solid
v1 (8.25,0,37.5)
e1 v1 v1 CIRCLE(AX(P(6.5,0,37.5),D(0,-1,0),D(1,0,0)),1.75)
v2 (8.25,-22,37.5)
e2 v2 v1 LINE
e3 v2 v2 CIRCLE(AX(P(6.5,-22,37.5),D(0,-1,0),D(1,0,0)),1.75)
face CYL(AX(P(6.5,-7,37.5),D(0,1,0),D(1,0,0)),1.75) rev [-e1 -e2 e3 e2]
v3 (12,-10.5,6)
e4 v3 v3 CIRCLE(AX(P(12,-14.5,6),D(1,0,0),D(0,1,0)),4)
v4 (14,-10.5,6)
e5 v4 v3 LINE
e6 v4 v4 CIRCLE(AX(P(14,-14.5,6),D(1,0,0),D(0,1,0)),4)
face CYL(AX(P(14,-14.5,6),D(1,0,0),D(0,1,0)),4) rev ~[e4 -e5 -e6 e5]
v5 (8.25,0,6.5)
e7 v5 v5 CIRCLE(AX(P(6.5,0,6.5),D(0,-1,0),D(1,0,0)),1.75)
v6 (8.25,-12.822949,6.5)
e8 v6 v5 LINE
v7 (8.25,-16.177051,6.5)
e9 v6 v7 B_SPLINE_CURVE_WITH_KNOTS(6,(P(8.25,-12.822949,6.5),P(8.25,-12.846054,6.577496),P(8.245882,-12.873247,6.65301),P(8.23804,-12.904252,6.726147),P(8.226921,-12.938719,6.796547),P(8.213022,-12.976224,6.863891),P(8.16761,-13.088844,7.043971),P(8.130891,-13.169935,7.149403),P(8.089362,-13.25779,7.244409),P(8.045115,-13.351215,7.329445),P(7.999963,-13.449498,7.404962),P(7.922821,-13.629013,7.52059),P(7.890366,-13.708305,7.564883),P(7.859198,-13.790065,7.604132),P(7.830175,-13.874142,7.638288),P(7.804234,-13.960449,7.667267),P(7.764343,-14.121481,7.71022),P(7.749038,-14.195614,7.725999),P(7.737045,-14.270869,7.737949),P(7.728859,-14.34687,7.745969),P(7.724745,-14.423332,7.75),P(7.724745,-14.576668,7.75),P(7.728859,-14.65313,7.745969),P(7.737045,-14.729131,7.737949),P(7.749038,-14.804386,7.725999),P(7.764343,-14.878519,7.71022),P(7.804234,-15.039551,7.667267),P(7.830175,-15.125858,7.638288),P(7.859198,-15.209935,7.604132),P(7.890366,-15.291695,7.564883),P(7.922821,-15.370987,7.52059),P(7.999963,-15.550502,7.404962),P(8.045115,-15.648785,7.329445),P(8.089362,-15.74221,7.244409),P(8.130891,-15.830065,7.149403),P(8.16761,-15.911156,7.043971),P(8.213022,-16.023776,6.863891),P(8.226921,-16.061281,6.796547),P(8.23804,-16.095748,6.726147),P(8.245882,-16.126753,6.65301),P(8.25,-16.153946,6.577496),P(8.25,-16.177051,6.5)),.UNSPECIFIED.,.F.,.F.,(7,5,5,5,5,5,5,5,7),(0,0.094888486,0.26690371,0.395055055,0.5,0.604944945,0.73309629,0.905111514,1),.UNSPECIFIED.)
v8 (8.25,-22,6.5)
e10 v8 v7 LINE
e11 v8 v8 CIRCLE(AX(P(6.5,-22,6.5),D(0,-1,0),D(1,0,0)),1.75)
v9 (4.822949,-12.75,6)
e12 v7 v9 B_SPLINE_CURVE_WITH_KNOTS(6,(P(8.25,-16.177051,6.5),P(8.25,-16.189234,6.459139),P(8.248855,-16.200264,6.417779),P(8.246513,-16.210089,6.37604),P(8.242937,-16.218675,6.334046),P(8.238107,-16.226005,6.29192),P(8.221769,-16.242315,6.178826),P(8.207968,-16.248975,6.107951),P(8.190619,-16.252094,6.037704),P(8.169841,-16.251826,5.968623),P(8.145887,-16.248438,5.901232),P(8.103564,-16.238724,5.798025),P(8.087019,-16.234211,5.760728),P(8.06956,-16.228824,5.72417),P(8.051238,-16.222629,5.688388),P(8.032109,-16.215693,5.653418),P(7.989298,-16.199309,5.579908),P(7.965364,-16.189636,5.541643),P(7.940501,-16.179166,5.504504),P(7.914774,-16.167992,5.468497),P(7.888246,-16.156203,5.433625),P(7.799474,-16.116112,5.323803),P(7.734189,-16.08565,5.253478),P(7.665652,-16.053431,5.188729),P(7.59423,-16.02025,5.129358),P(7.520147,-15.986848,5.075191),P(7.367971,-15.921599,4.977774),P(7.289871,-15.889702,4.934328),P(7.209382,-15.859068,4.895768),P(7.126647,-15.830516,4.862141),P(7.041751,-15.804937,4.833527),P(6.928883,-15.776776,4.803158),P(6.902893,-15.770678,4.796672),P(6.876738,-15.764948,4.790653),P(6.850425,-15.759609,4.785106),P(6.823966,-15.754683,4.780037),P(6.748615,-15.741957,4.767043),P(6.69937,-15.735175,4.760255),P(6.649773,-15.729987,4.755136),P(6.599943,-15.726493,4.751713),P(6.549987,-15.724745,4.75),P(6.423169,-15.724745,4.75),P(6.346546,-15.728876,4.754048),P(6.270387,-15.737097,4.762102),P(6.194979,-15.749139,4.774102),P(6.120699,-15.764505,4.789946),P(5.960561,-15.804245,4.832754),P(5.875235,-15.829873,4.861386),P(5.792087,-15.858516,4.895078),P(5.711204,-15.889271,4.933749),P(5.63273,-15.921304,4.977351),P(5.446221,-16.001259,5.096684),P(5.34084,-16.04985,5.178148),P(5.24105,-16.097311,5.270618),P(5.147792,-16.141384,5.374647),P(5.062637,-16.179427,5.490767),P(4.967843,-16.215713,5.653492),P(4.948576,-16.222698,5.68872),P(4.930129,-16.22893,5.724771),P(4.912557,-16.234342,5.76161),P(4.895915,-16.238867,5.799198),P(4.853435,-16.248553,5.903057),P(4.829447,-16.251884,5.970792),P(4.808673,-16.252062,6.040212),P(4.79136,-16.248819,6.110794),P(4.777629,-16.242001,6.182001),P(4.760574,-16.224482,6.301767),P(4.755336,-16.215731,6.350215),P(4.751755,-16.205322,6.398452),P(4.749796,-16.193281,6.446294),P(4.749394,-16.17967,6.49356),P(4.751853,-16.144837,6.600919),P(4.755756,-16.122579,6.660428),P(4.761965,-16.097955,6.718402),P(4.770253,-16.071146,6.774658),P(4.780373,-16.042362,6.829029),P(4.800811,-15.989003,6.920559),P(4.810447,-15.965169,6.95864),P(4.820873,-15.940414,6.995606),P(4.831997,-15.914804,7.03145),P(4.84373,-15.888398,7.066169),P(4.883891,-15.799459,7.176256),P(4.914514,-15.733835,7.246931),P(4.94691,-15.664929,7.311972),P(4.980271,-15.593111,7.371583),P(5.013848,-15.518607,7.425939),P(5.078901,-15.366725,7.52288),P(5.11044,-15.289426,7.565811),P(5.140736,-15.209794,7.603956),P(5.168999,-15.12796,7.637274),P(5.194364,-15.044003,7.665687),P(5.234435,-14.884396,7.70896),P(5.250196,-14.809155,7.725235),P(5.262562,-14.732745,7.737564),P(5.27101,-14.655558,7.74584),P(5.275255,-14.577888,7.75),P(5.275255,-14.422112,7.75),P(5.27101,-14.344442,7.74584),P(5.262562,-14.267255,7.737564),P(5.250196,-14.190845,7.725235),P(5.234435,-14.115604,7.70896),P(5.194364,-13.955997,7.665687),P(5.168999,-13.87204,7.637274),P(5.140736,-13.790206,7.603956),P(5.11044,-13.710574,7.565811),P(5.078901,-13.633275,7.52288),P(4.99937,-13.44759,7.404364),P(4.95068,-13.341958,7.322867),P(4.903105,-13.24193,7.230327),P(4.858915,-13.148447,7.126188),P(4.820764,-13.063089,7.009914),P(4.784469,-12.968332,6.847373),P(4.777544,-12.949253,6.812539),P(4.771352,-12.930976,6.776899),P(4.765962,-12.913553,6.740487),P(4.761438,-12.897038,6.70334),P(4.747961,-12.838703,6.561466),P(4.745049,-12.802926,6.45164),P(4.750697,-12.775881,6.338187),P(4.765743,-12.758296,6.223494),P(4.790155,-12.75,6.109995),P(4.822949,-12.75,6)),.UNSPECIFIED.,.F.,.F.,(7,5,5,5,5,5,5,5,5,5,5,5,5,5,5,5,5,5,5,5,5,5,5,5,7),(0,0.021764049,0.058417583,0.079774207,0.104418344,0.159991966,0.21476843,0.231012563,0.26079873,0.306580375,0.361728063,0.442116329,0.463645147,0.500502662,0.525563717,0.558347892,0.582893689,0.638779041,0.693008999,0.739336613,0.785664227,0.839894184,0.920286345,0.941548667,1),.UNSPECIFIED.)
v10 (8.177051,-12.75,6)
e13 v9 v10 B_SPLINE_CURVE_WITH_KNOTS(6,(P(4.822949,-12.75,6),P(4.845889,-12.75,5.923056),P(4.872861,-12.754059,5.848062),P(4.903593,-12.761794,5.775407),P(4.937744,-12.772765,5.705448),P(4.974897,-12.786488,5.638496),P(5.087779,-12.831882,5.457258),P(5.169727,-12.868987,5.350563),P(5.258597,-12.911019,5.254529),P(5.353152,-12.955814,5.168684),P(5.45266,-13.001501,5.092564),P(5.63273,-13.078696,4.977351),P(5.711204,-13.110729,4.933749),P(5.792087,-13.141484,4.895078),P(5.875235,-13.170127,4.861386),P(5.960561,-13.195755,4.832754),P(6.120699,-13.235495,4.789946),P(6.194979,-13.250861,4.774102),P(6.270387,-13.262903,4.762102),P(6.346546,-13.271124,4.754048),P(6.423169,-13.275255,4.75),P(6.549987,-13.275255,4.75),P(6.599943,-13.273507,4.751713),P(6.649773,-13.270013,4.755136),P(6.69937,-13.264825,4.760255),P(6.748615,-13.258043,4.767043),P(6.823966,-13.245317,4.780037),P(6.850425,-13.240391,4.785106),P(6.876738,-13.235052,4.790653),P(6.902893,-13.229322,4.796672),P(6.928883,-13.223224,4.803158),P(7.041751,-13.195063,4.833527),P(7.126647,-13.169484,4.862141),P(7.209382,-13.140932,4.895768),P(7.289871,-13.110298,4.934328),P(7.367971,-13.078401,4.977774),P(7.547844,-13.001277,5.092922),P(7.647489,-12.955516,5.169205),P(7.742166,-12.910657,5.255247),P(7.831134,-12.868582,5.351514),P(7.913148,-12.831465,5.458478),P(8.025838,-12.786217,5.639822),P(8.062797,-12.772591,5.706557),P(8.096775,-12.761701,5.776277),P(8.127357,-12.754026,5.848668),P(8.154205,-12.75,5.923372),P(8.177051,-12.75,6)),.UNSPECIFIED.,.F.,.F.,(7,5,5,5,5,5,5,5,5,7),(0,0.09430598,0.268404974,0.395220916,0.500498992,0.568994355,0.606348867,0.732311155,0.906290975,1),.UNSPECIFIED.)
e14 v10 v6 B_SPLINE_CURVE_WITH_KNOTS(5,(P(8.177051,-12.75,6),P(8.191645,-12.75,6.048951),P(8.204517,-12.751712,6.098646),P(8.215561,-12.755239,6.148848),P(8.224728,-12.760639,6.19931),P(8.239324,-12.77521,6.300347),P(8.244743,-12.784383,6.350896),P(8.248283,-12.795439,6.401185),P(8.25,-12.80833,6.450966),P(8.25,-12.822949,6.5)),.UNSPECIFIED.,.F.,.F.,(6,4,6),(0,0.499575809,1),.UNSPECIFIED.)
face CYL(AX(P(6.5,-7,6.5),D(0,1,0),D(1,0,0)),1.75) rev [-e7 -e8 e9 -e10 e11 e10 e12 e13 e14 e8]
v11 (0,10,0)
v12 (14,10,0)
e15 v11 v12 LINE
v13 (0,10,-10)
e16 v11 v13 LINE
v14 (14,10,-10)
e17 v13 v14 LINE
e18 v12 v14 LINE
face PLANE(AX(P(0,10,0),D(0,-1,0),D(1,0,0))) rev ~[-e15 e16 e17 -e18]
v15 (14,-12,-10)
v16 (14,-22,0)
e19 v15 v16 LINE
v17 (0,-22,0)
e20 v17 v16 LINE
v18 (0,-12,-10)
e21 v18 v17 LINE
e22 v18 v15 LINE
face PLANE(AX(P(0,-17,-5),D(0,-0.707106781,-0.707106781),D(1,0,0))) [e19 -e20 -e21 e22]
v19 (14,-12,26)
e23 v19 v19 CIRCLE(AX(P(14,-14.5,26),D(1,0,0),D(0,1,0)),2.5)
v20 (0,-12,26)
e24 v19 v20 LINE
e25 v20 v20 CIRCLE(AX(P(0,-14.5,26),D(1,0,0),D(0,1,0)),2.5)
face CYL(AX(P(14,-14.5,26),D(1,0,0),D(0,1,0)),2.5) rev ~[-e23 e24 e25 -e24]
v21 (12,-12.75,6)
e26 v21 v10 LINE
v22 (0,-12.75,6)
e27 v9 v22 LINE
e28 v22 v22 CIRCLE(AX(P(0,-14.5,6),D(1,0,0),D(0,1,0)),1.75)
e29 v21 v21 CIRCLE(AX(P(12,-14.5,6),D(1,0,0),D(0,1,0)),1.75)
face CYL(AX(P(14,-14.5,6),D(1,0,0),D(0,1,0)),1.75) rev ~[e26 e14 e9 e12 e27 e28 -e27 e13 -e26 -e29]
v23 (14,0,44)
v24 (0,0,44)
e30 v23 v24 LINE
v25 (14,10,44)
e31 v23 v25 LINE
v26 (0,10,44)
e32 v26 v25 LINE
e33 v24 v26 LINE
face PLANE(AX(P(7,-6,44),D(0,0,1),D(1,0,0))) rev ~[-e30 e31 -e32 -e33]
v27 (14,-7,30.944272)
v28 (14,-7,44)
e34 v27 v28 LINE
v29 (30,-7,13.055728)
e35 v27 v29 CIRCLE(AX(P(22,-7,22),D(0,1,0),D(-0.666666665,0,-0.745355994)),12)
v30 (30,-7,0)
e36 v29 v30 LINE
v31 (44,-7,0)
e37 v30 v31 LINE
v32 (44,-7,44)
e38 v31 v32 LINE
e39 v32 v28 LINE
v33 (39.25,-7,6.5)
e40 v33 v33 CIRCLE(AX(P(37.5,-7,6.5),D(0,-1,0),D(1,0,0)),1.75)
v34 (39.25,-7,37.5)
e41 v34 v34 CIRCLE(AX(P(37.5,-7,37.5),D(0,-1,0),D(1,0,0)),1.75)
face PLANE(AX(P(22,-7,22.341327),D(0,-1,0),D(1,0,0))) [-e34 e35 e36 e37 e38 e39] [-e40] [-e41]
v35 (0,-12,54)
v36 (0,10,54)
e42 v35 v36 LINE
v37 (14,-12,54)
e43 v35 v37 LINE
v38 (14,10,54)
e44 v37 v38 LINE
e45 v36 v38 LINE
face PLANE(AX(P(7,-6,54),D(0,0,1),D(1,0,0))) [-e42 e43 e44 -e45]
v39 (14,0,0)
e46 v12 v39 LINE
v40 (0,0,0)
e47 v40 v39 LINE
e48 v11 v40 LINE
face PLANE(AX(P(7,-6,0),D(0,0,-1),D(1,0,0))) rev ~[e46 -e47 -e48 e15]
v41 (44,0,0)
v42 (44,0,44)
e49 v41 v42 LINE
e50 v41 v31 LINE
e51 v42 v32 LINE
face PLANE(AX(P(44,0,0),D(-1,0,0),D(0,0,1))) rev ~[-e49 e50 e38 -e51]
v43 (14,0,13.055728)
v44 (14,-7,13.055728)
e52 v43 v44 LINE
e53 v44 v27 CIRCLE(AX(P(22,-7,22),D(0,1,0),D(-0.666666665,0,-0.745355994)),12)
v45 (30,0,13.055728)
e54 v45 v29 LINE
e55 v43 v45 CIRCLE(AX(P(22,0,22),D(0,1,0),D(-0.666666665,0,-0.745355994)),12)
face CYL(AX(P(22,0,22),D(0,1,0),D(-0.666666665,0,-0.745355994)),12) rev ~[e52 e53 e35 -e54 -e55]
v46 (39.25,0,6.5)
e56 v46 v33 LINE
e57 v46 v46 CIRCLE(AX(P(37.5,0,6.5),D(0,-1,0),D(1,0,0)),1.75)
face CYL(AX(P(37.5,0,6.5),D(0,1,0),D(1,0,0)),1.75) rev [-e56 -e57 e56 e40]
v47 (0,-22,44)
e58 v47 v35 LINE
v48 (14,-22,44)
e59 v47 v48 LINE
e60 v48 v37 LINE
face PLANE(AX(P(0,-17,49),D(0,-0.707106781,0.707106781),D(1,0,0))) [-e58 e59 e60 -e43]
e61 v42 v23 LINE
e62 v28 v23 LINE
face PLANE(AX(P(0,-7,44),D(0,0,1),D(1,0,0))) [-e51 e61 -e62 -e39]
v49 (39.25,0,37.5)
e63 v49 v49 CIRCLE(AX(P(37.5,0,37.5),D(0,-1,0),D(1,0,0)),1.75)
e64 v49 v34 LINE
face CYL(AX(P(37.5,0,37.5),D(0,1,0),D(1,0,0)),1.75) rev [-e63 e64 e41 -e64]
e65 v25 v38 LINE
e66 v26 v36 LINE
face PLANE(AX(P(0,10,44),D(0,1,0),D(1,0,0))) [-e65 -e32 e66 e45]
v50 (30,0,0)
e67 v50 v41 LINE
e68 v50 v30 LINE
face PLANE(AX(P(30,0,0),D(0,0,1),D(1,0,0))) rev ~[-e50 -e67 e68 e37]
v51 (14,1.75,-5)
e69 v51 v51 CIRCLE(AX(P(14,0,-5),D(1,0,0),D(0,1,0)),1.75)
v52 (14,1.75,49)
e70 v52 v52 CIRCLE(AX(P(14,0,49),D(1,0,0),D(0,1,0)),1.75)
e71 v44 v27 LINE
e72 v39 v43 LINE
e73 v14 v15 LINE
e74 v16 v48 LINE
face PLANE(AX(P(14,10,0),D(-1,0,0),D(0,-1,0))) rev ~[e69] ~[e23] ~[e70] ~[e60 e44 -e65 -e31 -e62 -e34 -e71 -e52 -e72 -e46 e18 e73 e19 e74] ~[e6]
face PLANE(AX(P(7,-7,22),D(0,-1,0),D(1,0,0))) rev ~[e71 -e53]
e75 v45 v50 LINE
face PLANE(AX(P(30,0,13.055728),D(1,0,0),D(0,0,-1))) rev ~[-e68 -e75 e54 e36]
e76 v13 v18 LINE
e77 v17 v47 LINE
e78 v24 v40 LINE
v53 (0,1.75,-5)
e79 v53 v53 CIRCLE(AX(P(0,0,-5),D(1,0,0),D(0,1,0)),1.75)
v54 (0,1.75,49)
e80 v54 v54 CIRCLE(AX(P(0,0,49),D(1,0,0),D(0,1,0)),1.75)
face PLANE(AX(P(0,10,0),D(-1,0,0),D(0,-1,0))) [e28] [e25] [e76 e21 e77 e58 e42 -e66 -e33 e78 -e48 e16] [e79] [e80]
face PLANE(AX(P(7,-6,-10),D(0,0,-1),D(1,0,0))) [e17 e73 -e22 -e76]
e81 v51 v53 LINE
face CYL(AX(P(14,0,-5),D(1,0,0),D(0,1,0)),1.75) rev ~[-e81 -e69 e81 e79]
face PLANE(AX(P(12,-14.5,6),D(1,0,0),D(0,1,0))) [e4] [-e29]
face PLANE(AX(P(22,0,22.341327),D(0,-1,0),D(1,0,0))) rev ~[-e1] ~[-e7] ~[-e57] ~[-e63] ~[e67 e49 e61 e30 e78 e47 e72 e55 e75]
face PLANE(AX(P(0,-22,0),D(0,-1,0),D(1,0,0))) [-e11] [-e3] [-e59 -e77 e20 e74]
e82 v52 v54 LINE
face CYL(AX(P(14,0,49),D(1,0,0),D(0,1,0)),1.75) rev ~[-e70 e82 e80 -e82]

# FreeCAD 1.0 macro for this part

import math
import FreeCAD as App
import Part
import Sketcher
from FreeCAD import Vector


def edges_at(feature, points):
    """Names of the edges that pass closest to the given points."""
    edges = feature.Shape.Edges
    near = lambda p: min(range(len(edges)), key=lambda i: edges[i].distToShape(Part.Vertex(*p))[0])
    return sorted({f"Edge{near(p) + 1}" for p in points})


def add_polygon(sketch, points):
    """Adds a closed chain of lines whose ends are joined by coincident constraints."""
    first, n = sketch.GeometryCount, len(points)
    for a, b in zip(points, points[1:] + points[:1]):
        sketch.addGeometry(Part.LineSegment(App.Vector(*a, 0), App.Vector(*b, 0)), False)
    for i in range(n):
        sketch.addConstraint(Sketcher.Constraint("Coincident", first + i, 2, first + (i + 1) % n, 1))

doc = App.newDocument("Part")
body = doc.addObject("PartDesign::Body", "Body")

# Sketch on XZ plane
sketch1 = body.newObject("Sketcher::SketchObject", "Sketch")
sketch1.AttachmentSupport = (doc.getObject("XZ_Plane"), [""])
sketch1.MapMode = "FlatFace"
sketch1.addGeometry([
    Part.LineSegment(Vector(0, 44, 0), Vector(0, 0, 0)),  # 0
    Part.LineSegment(Vector(0, 0, 0), Vector(14, 0, 0)),  # 1
    Part.LineSegment(Vector(14, 0, 0), Vector(14, 13.1, 0)),  # 2
    Part.ArcOfCircle(Part.Circle(Vector(22, 22, 0), Vector(0, 0, 1), 12), math.radians(-48), math.radians(228)),  # 3
    Part.LineSegment(Vector(30, 13.1, 0), Vector(30, 0, 0)),  # 4
    Part.LineSegment(Vector(30, 0, 0), Vector(44, 0, 0)),  # 5
    Part.LineSegment(Vector(44, 0, 0), Vector(44, 44, 0)),  # 6
    Part.LineSegment(Vector(44, 44, 0), Vector(0, 44, 0)),  # 7
    Part.Circle(Vector(6.5, 6.5, 0), Vector(0, 0, 1), 1.8),  # 8
    Part.Circle(Vector(37.5, 6.5, 0), Vector(0, 0, 1), 1.8),  # 9
    Part.Circle(Vector(6.5, 37.5, 0), Vector(0, 0, 1), 1.8),  # 10
    Part.Circle(Vector(37.5, 37.5, 0), Vector(0, 0, 1), 1.8),  # 11
], False)
sketch1.addConstraint([
    Sketcher.Constraint("Coincident", 0, 2, 1, 1),
    Sketcher.Constraint("Coincident", 1, 2, 2, 1),
    Sketcher.Constraint("Coincident", 2, 2, 3, 2),
    Sketcher.Constraint("Coincident", 3, 1, 4, 1),
    Sketcher.Constraint("Coincident", 4, 2, 5, 1),
    Sketcher.Constraint("Coincident", 5, 2, 6, 1),
    Sketcher.Constraint("Coincident", 6, 2, 7, 1),
    Sketcher.Constraint("Coincident", 7, 2, 0, 1),
    Sketcher.Constraint("Vertical", 0),
    Sketcher.Constraint("Horizontal", 1),
    Sketcher.Constraint("Vertical", 2),
    Sketcher.Constraint("Vertical", 4),
    Sketcher.Constraint("Horizontal", 5),
    Sketcher.Constraint("Vertical", 6),
    Sketcher.Constraint("Horizontal", 7),
    Sketcher.Constraint("Coincident", 0, 2, -1, 1),
    Sketcher.Constraint("Equal", 8, 9),
    Sketcher.Constraint("Equal", 9, 10),
    Sketcher.Constraint("Equal", 10, 11),
    Sketcher.Constraint("PointOnObject", 4, 2, -1),
    Sketcher.Constraint("Horizontal", 8, 3, 9, 3),
    Sketcher.Constraint("Horizontal", 10, 3, 11, 3),
    Sketcher.Constraint("Horizontal", 2, 2, 3, 1),
    Sketcher.Constraint("Vertical", 8, 3, 10, 3),
    Sketcher.Constraint("Vertical", 9, 3, 11, 3),
    Sketcher.Constraint("Equal", 1, 5),
    Sketcher.Constraint("Equal", 7, 0),
    Sketcher.Constraint("Radius", 3, 12.0),
    Sketcher.Constraint("Diameter", 8, 3.5),
    Sketcher.Constraint("DistanceX", 1, 1, 1, 2, 14.0),
    Sketcher.Constraint("DistanceX", 7, 2, 7, 1, 44.0),
    Sketcher.Constraint("DistanceY", -1, 1, 3, 3, 22.0),
    Sketcher.Constraint("DistanceX", 8, 3, 9, 3, 31.0),
    Sketcher.Constraint("DistanceY", 8, 3, 10, 3, 31.0),
    Sketcher.Constraint("DistanceX", -1, 1, 8, 3, 6.5),
    Sketcher.Constraint("DistanceY", -1, 1, 8, 3, 6.5),
])
pad1 = body.newObject("PartDesign::Pad", "Pad")
pad1.Profile = sketch1
pad1.Length = 7

# Sketch on XZ plane
sketch2 = body.newObject("Sketcher::SketchObject", "Sketch001")
sketch2.AttachmentSupport = (doc.getObject("XZ_Plane"), [""])
sketch2.MapMode = "FlatFace"
sketch2.AttachmentOffset = App.Placement(Vector(0, 0, 7), App.Rotation())
add_polygon(sketch2, [(0, 44), (0, 0), (14, 0), (14, 44)])  # lines 0-3
sketch2.addGeometry(Part.Circle(Vector(6.5, 6.5, 0), Vector(0, 0, 1), 1.8), False)  # 4
sketch2.addGeometry(Part.Circle(Vector(6.5, 37.5, 0), Vector(0, 0, 1), 1.8), False)  # 5
sketch2.addConstraint([
    Sketcher.Constraint("Vertical", 0),
    Sketcher.Constraint("Horizontal", 1),
    Sketcher.Constraint("Vertical", 2),
    Sketcher.Constraint("Horizontal", 3),
    Sketcher.Constraint("Coincident", 0, 2, -1, 1),
    Sketcher.Constraint("Equal", 4, 5),
    Sketcher.Constraint("Vertical", 4, 3, 5, 3),
    Sketcher.Constraint("Diameter", 4, 3.5),
    Sketcher.Constraint("DistanceX", 1, 1, 1, 2, 14.0),
    Sketcher.Constraint("DistanceY", 0, 2, 0, 1, 44.0),
    Sketcher.Constraint("DistanceY", 4, 3, 5, 3, 31.0),
    Sketcher.Constraint("DistanceX", -1, 1, 4, 3, 6.5),
    Sketcher.Constraint("DistanceY", -1, 1, 4, 3, 6.5),
])
pad2 = body.newObject("PartDesign::Pad", "Pad001")
pad2.Profile = sketch2
pad2.Length = 15

# Sketch on YZ plane
sketch3 = body.newObject("Sketcher::SketchObject", "Sketch002")
sketch3.AttachmentSupport = (doc.getObject("YZ_Plane"), [""])
sketch3.MapMode = "FlatFace"
sketch3.AttachmentOffset = App.Placement(Vector(0, 0, 14), App.Rotation())
sketch3.addGeometry([
    Part.Circle(Vector(-14.5, 26, 0), Vector(0, 0, 1), 2.5),
    Part.Circle(Vector(-14.5, 6, 0), Vector(0, 0, 1), 1.8),
], False)
sketch3.addConstraint([
    Sketcher.Constraint("Vertical", 0, 3, 1, 3),
    Sketcher.Constraint("Diameter", 0, 5.0),
    Sketcher.Constraint("Diameter", 1, 3.5),
    Sketcher.Constraint("DistanceY", -1, 1, 0, 3, 26.0),
    Sketcher.Constraint("DistanceY", -1, 1, 1, 3, 6.0),
    Sketcher.Constraint("DistanceX", 0, 3, -1, 1, 14.5),
])
pocket1 = body.newObject("PartDesign::Pocket", "Pocket")
pocket1.Profile = sketch3
pocket1.Length = 25

# Sketch on YZ plane
sketch4 = body.newObject("Sketcher::SketchObject", "Sketch003")
sketch4.AttachmentSupport = (doc.getObject("YZ_Plane"), [""])
sketch4.MapMode = "FlatFace"
sketch4.AttachmentOffset = App.Placement(Vector(0, 0, 14), App.Rotation())
sketch4.addGeometry(Part.Circle(Vector(-14.5, 6, 0), Vector(0, 0, 1), 4), False)
sketch4.addConstraint([
    Sketcher.Constraint("Diameter", 0, 8.0),
    Sketcher.Constraint("DistanceY", -1, 1, 0, 3, 6.0),
    Sketcher.Constraint("DistanceX", 0, 3, -1, 1, 14.5),
])
pocket2 = body.newObject("PartDesign::Pocket", "Pocket001")
pocket2.Profile = sketch4
pocket2.Length = 2

# Sketch on XY plane
sketch5 = body.newObject("Sketcher::SketchObject", "Sketch004")
sketch5.AttachmentSupport = (doc.getObject("XY_Plane"), [""])
sketch5.MapMode = "FlatFace"
sketch5.AttachmentOffset = App.Placement(Vector(0, 0, 44), App.Rotation())
add_polygon(sketch5, [(0, 10), (0, -22), (14, -22), (14, 10)])  # lines 0-3
sketch5.addConstraint([
    Sketcher.Constraint("Vertical", 0),
    Sketcher.Constraint("Horizontal", 1),
    Sketcher.Constraint("Vertical", 2),
    Sketcher.Constraint("Horizontal", 3),
    Sketcher.Constraint("PointOnObject", 0, 2, -2),
    Sketcher.Constraint("DistanceX", 1, 1, 1, 2, 14.0),
    Sketcher.Constraint("DistanceY", 0, 2, 0, 1, 32.0),
    Sketcher.Constraint("DistanceY", 0, 2, -1, 1, 22.0),
])
pad3 = body.newObject("PartDesign::Pad", "Pad002")
pad3.Profile = sketch5
pad3.Length = 10

# Sketch on XY plane
sketch6 = body.newObject("Sketcher::SketchObject", "Sketch005")
sketch6.AttachmentSupport = (doc.getObject("XY_Plane"), [""])
sketch6.MapMode = "FlatFace"
add_polygon(sketch6, [(0, -22), (0, 10), (14, 10), (14, -22)])  # lines 0-3
sketch6.addConstraint([
    Sketcher.Constraint("Vertical", 0),
    Sketcher.Constraint("Horizontal", 1),
    Sketcher.Constraint("Vertical", 2),
    Sketcher.Constraint("Horizontal", 3),
    Sketcher.Constraint("PointOnObject", 0, 2, -2),
    Sketcher.Constraint("DistanceX", 1, 1, 1, 2, 14.0),
    Sketcher.Constraint("DistanceY", 0, 1, 0, 2, 32.0),
    Sketcher.Constraint("DistanceY", -1, 1, 0, 2, 10.0),
])
pad4 = body.newObject("PartDesign::Pad", "Pad003")
pad4.Profile = sketch6
pad4.Length = 10
pad4.Reversed = True

# Sketch on YZ plane
sketch7 = body.newObject("Sketcher::SketchObject", "Sketch006")
sketch7.AttachmentSupport = (doc.getObject("YZ_Plane"), [""])
sketch7.MapMode = "FlatFace"
sketch7.AttachmentOffset = App.Placement(Vector(0, 0, 14), App.Rotation())
sketch7.addGeometry([
    Part.Circle(Vector(0, 49, 0), Vector(0, 0, 1), 1.8),
    Part.Circle(Vector(0, -5, 0), Vector(0, 0, 1), 1.8),
], False)
sketch7.addConstraint([
    Sketcher.Constraint("Equal", 0, 1),
    Sketcher.Constraint("PointOnObject", 0, 3, -2),
    Sketcher.Constraint("PointOnObject", 1, 3, -2),
    Sketcher.Constraint("Diameter", 0, 3.5),
    Sketcher.Constraint("DistanceY", -1, 1, 0, 3, 49.0),
    Sketcher.Constraint("DistanceY", 1, 3, -1, 1, 5.0),
])
pocket3 = body.newObject("PartDesign::Pocket", "Pocket002")
pocket3.Profile = sketch7
pocket3.Length = 25
doc.recompute()

chamfer = body.newObject("PartDesign::Chamfer", "Chamfer")
chamfer.Base = (pocket3, edges_at(pocket3, [(7, -22, 54), (7, -22, -10)]))
chamfer.Size = 10

doc.recompute()
